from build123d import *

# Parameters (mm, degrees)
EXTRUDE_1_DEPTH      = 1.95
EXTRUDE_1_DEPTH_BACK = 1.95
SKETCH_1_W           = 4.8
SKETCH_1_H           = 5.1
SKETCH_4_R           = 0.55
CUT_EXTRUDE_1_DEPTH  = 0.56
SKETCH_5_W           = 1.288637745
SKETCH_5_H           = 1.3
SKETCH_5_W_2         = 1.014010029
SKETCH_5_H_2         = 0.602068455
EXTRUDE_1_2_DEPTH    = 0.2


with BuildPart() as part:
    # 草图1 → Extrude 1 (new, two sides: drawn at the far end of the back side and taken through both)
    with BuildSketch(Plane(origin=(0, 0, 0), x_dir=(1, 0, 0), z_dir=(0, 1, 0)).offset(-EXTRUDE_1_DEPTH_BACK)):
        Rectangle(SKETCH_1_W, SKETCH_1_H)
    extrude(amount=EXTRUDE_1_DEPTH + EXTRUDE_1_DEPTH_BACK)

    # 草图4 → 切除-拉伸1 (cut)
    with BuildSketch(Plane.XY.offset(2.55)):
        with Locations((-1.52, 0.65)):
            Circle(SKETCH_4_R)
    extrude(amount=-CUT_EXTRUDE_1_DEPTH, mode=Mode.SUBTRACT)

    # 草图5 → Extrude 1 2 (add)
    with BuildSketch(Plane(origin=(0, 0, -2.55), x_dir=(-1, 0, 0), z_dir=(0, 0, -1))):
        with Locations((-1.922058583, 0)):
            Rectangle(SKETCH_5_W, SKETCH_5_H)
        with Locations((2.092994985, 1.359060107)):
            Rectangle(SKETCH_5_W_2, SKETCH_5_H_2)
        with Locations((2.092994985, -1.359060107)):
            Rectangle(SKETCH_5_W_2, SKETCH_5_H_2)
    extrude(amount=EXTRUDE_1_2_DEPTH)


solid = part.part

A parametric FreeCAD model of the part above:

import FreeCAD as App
import Part
import Sketcher
Q = App.Units.Quantity

doc = App.newDocument("Part")
params = doc.addObject("Spreadsheet::Sheet", "Params")
for row, (alias, value) in enumerate([
    ("sketch1_width", "4.8 mm"),
    ("sketch1_height", "5.1 mm"),
    ("pad1_length", "1.95 mm"),
    ("pad1_length2", "1.95 mm"),
    ("sketch2_diameter", "1.1 mm"),
    ("pocket1_length", "0.56 mm"),
    ("sketch3_height", "1.3 mm"),
    ("pad2_length", "0.2 mm"),
], start=1):
    params.set(f"A{row}", alias)
    params.set(f"B{row}", "=" + value)
    params.setAlias(f"B{row}", alias)

body = doc.addObject("PartDesign::Body", "Body")

# Sketch on XZ plane
sketch1 = body.newObject("Sketcher::SketchObject", "Sketch")
sketch1.AttachmentSupport = (doc.getObject("XZ_Plane"), [""])
sketch1.MapMode = "FlatFace"
sketch1.addGeometry([
    Part.LineSegment(App.Vector(-2.4, -2.55, 0), App.Vector(-2.4, 2.55, 0)),
    Part.LineSegment(App.Vector(-2.4, 2.55, 0), App.Vector(2.4, 2.55, 0)),
    Part.LineSegment(App.Vector(2.4, 2.55, 0), App.Vector(2.4, -2.55, 0)),
    Part.LineSegment(App.Vector(2.4, -2.55, 0), App.Vector(-2.4, -2.55, 0)),
], False)
sketch1.addConstraint([
    Sketcher.Constraint("Coincident", 0, 2, 1, 1),
    Sketcher.Constraint("Coincident", 1, 2, 2, 1),
    Sketcher.Constraint("Coincident", 2, 2, 3, 1),
    Sketcher.Constraint("Coincident", 3, 2, 0, 1),
    Sketcher.Constraint("Vertical", 0),
    Sketcher.Constraint("Horizontal", 1),
    Sketcher.Constraint("Vertical", 2),
    Sketcher.Constraint("Horizontal", 3),
    Sketcher.Constraint("Symmetric", 0, 2, 2, 2, -1, 1),
    Sketcher.Constraint("DistanceX", 1, 1, 1, 2, Q("4.8 mm")),
    Sketcher.Constraint("DistanceY", 0, 1, 0, 2, Q("5.1 mm")),
])
sketch1.setExpression("Constraints[9]", "Params.sketch1_width")
sketch1.setExpression("Constraints[10]", "Params.sketch1_height")
pad1 = body.newObject("PartDesign::Pad", "Pad")
pad1.Profile = sketch1
pad1.Type = "TwoLengths"
pad1.setExpression("Length", "Params.pad1_length")
pad1.setExpression("Length2", "Params.pad1_length2")
pad1.Reversed = True

# Sketch on XY plane
sketch2 = body.newObject("Sketcher::SketchObject", "Sketch001")
sketch2.AttachmentSupport = (doc.getObject("XY_Plane"), [""])
sketch2.MapMode = "FlatFace"
sketch2.AttachmentOffset = App.Placement(App.Vector(0, 0, 2.55), App.Rotation())
sketch2.addGeometry(Part.Circle(App.Vector(-1.52, 0.65, 0), App.Vector(0, 0, 1), 0.55), False)
sketch2.addConstraint([
    Sketcher.Constraint("Diameter", 0, Q("1.1 mm")),
    Sketcher.Constraint("DistanceX", 0, 3, -1, 1, Q("1.52 mm")),
    Sketcher.Constraint("DistanceY", -1, 1, 0, 3, Q("0.65 mm")),
])
sketch2.setExpression("Constraints[0]", "Params.sketch2_diameter")
pocket1 = body.newObject("PartDesign::Pocket", "Pocket")
pocket1.Profile = sketch2
pocket1.setExpression("Length", "Params.pocket1_length")

# Sketch on XY plane
sketch3 = body.newObject("Sketcher::SketchObject", "Sketch002")
sketch3.AttachmentSupport = (doc.getObject("XY_Plane"), [""])
sketch3.MapMode = "FlatFace"
sketch3.AttachmentOffset = App.Placement(App.Vector(0, 0, -2.55), App.Rotation())
sketch3.addGeometry([
    Part.LineSegment(App.Vector(2.566377, 0.65, 0), App.Vector(2.566377, -0.65, 0)),  # 0
    Part.LineSegment(App.Vector(2.566377, -0.65, 0), App.Vector(1.27774, -0.65, 0)),  # 1
    Part.LineSegment(App.Vector(1.27774, -0.65, 0), App.Vector(1.27774, 0.65, 0)),  # 2
    Part.LineSegment(App.Vector(1.27774, 0.65, 0), App.Vector(2.566377, 0.65, 0)),  # 3
    Part.LineSegment(App.Vector(-1.58599, 1.660094, 0), App.Vector(-1.58599, 1.058026, 0)),  # 4
    Part.LineSegment(App.Vector(-1.58599, 1.058026, 0), App.Vector(-2.6, 1.058026, 0)),  # 5
    Part.LineSegment(App.Vector(-2.6, 1.058026, 0), App.Vector(-2.6, 1.660094, 0)),  # 6
    Part.LineSegment(App.Vector(-2.6, 1.660094, 0), App.Vector(-1.58599, 1.660094, 0)),  # 7
    Part.LineSegment(App.Vector(-1.58599, -1.058026, 0), App.Vector(-1.58599, -1.660094, 0)),  # 8
    Part.LineSegment(App.Vector(-1.58599, -1.660094, 0), App.Vector(-2.6, -1.660094, 0)),  # 9
    Part.LineSegment(App.Vector(-2.6, -1.660094, 0), App.Vector(-2.6, -1.058026, 0)),  # 10
    Part.LineSegment(App.Vector(-2.6, -1.058026, 0), App.Vector(-1.58599, -1.058026, 0)),  # 11
], False)
sketch3.addConstraint([
    Sketcher.Constraint("Coincident", 0, 2, 1, 1),
    Sketcher.Constraint("Coincident", 1, 2, 2, 1),
    Sketcher.Constraint("Coincident", 2, 2, 3, 1),
    Sketcher.Constraint("Coincident", 3, 2, 0, 1),
    Sketcher.Constraint("Coincident", 4, 2, 5, 1),
    Sketcher.Constraint("Coincident", 5, 2, 6, 1),
    Sketcher.Constraint("Coincident", 6, 2, 7, 1),
    Sketcher.Constraint("Coincident", 7, 2, 4, 1),
    Sketcher.Constraint("Coincident", 8, 2, 9, 1),
    Sketcher.Constraint("Coincident", 9, 2, 10, 1),
    Sketcher.Constraint("Coincident", 10, 2, 11, 1),
    Sketcher.Constraint("Coincident", 11, 2, 8, 1),
    Sketcher.Constraint("Vertical", 0),
    Sketcher.Constraint("Horizontal", 1),
    Sketcher.Constraint("Vertical", 2),
    Sketcher.Constraint("Horizontal", 3),
    Sketcher.Constraint("Vertical", 4),
    Sketcher.Constraint("Horizontal", 5),
    Sketcher.Constraint("Vertical", 6),
    Sketcher.Constraint("Horizontal", 7),
    Sketcher.Constraint("Vertical", 8),
    Sketcher.Constraint("Horizontal", 9),
    Sketcher.Constraint("Vertical", 10),
    Sketcher.Constraint("Horizontal", 11),
    Sketcher.Constraint("Symmetric", 7, 2, 8, 2, -1),
    Sketcher.Constraint("Symmetric", 5, 2, 10, 2, -1),
    Sketcher.Constraint("DistanceY", 0, 2, 0, 1, Q("1.3 mm")),
    Sketcher.Constraint("DistanceX", 5, 2, -1, 1, Q("2.6 mm")),
    Sketcher.Constraint("DistanceY", 0, 2, -1, 1, Q("0.65 mm")),
    Sketcher.Constraint("DistanceX", 5, 2, 5, 1, Q("1.01401 mm")),
    Sketcher.Constraint("DistanceY", 4, 2, 4, 1, Q("0.602068 mm")),
    Sketcher.Constraint("DistanceX", 1, 2, 1, 1, Q("1.288638 mm")),
    Sketcher.Constraint("DistanceX", -1, 1, 1, 2, Q("1.27774 mm")),
    Sketcher.Constraint("DistanceY", 8, 2, 4, 2, Q("2.71812 mm")),
])
sketch3.setExpression("Constraints[26]", "Params.sketch3_height")
pad2 = body.newObject("PartDesign::Pad", "Pad001")
pad2.Profile = sketch3
pad2.setExpression("Length", "Params.pad2_length")
pad2.Reversed = True

doc.recompute()
